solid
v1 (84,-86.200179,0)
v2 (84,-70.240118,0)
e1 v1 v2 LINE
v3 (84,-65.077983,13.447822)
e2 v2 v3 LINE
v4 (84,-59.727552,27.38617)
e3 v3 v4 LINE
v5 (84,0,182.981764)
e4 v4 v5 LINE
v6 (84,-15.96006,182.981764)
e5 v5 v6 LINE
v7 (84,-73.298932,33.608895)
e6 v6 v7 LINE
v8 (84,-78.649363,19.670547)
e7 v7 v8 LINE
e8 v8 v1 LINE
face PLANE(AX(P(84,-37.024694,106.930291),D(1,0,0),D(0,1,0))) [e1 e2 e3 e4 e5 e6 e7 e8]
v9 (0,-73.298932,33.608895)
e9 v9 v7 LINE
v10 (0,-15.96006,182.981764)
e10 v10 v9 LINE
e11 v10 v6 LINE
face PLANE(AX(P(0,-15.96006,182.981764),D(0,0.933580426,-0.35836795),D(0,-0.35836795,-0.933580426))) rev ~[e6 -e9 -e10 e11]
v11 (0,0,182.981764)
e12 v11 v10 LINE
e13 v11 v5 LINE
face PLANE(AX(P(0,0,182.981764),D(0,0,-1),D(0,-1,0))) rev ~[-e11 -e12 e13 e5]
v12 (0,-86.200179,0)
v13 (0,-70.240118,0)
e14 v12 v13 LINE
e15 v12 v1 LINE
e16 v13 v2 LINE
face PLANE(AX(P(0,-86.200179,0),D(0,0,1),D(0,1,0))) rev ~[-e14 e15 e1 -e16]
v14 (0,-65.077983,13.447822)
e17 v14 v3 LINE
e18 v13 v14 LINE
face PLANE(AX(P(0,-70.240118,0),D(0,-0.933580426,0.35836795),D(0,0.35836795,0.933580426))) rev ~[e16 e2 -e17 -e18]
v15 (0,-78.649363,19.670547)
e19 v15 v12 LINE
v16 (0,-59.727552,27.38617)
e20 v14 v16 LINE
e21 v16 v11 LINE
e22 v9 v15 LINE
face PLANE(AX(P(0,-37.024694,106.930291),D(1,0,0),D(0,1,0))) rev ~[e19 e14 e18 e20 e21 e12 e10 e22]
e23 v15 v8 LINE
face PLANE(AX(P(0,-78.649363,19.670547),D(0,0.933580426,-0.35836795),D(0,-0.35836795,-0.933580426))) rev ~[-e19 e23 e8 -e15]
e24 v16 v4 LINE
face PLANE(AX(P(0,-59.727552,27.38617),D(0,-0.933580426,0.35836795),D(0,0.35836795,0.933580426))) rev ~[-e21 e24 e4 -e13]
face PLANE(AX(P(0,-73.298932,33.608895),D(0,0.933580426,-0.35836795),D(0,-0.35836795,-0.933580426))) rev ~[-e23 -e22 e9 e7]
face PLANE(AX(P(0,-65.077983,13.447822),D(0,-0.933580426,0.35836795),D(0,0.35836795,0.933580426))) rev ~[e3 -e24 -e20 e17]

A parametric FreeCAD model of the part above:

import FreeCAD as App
import Part
import Sketcher
Q = App.Units.Quantity

doc = App.newDocument("Part")
body = doc.addObject("PartDesign::Body", "Body")

sketch1 = body.newObject("Sketcher::SketchObject", "Sketch")
sketch1.AttachmentSupport = (doc.getObject("YZ_Plane"), [""])
sketch1.MapMode = "FlatFace"
sketch1.addGeometry([
    Part.LineSegment(App.Vector(-60, 27, 0), App.Vector(0, 183, 0)),
    Part.LineSegment(App.Vector(0, 183, 0), App.Vector(-16, 183, 0)),
    Part.LineSegment(App.Vector(-16, 183, 0), App.Vector(-73, 34, 0)),
    Part.LineSegment(App.Vector(-73, 34, 0), App.Vector(-79, 20, 0)),
    Part.LineSegment(App.Vector(-79, 20, 0), App.Vector(-86, 0, 0)),
    Part.LineSegment(App.Vector(-86, 0, 0), App.Vector(-70, 0, 0)),
    Part.LineSegment(App.Vector(-70, 0, 0), App.Vector(-65, 13, 0)),
    Part.LineSegment(App.Vector(-65, 13, 0), App.Vector(-60, 27, 0)),
], False)
sketch1.addConstraint([
    Sketcher.Constraint("Coincident", 0, 2, 1, 1),
    Sketcher.Constraint("Coincident", 1, 2, 2, 1),
    Sketcher.Constraint("Coincident", 2, 2, 3, 1),
    Sketcher.Constraint("Coincident", 3, 2, 4, 1),
    Sketcher.Constraint("Coincident", 4, 2, 5, 1),
    Sketcher.Constraint("Coincident", 5, 2, 6, 1),
    Sketcher.Constraint("Coincident", 6, 2, 7, 1),
    Sketcher.Constraint("Coincident", 7, 2, 0, 1),
    Sketcher.Constraint("Horizontal", 1),
    Sketcher.Constraint("Horizontal", 5),
    Sketcher.Constraint("PointOnObject", 0, 2, -2),
    Sketcher.Constraint("PointOnObject", 4, 2, -1),
    Sketcher.Constraint("Parallel", 0, 2),
    Sketcher.Constraint("Parallel", 2, 3),
    Sketcher.Constraint("Parallel", 3, 4),
    Sketcher.Constraint("Parallel", 4, 6),
    Sketcher.Constraint("Parallel", 6, 7),
    Sketcher.Constraint("Equal", 3, 7),
    Sketcher.Constraint("Angle", 0, Q("69 deg")),
    Sketcher.Constraint("Distance", 2, 160.0),
    Sketcher.Constraint("DistanceX", 1, 2, 1, 1, 15.96006),
    Sketcher.Constraint("Distance", 0, 166.665441),
    Sketcher.Constraint("DistanceX", 4, 2, -1, 1, 86.200179),
    Sketcher.Constraint("DistanceX", 3, 2, 2, 2, 5.350431),
])
pad1 = body.newObject("PartDesign::Pad", "Pad")
pad1.Profile = sketch1
pad1.Length = 84

doc.recompute()
